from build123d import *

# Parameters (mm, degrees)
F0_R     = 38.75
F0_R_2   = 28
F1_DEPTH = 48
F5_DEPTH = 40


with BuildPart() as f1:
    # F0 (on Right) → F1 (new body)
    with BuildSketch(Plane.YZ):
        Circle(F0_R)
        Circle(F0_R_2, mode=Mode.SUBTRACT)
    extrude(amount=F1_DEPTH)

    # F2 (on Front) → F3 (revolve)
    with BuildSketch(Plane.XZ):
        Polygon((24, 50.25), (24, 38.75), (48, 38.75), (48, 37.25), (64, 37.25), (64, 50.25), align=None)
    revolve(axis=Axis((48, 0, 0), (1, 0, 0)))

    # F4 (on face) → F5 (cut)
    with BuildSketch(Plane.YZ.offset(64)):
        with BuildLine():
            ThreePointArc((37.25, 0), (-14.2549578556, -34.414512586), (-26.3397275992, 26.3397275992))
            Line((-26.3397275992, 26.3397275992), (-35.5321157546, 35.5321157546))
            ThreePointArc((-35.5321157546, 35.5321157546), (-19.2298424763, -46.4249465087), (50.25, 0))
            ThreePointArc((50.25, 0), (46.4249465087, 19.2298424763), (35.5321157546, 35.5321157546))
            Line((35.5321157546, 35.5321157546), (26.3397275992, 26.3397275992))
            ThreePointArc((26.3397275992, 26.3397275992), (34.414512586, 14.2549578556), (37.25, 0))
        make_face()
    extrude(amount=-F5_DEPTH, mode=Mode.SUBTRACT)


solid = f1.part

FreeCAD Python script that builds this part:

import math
import FreeCAD as App
import Part
import Sketcher
from FreeCAD import Vector
Q = App.Units.Quantity


def add_polygon(sketch, points):
    """Adds a closed chain of lines whose ends are joined by coincident constraints."""
    first, n = sketch.GeometryCount, len(points)
    for a, b in zip(points, points[1:] + points[:1]):
        sketch.addGeometry(Part.LineSegment(App.Vector(*a, 0), App.Vector(*b, 0)), False)
    for i in range(n):
        sketch.addConstraint(Sketcher.Constraint("Coincident", first + i, 2, first + (i + 1) % n, 1))

doc = App.newDocument("Part")
body = doc.addObject("PartDesign::Body", "Body")

# Sketch on YZ plane
sketch1 = body.newObject("Sketcher::SketchObject", "Sketch")
sketch1.AttachmentSupport = (doc.getObject("YZ_Plane"), [""])
sketch1.MapMode = "FlatFace"
sketch1.addGeometry([
    Part.Circle(Vector(0, 0, 0), Vector(0, 0, 1), 39),
    Part.Circle(Vector(0, 0, 0), Vector(0, 0, 1), 28),
], False)
sketch1.addConstraint([
    Sketcher.Constraint("Coincident", 0, 3, -1, 1),
    Sketcher.Constraint("Coincident", 1, 3, -1, 1),
    Sketcher.Constraint("Diameter", 1, Q("56 mm")),
    Sketcher.Constraint("Diameter", 0, Q("77.5 mm")),
])
pad1 = body.newObject("PartDesign::Pad", "Pad")
pad1.Profile = sketch1
pad1.Length = 48

# Sketch on XZ plane
sketch2 = body.newObject("Sketcher::SketchObject", "Sketch001")
sketch2.AttachmentSupport = (doc.getObject("XZ_Plane"), [""])
sketch2.MapMode = "FlatFace"
add_polygon(sketch2, [(24, 50.2), (24, 38.8), (48, 38.8), (48, 37.2), (64, 37.2), (64, 50.2)])  # lines 0-5
sketch2.addConstraint([
    Sketcher.Constraint("Vertical", 0),
    Sketcher.Constraint("Horizontal", 1),
    Sketcher.Constraint("Vertical", 2),
    Sketcher.Constraint("Horizontal", 3),
    Sketcher.Constraint("Vertical", 4),
    Sketcher.Constraint("Horizontal", 5),
    Sketcher.Constraint("DistanceX", 1, 1, 1, 2, Q("24 mm")),
    Sketcher.Constraint("DistanceX", 3, 1, 3, 2, Q("16 mm")),
    Sketcher.Constraint("DistanceY", 4, 1, 4, 2, Q("13 mm")),
    Sketcher.Constraint("DistanceY", 0, 2, 0, 1, Q("11.5 mm")),
    Sketcher.Constraint("DistanceX", -1, 1, 0, 2, Q("24 mm")),
    Sketcher.Constraint("DistanceY", -1, 1, 0, 2, Q("38.75 mm")),
])
revolution = body.newObject("PartDesign::Revolution", "Revolution")
revolution.Profile = sketch2
revolution.ReferenceAxis = (sketch2, ["H_Axis"])
revolution.Angle = 360

# Sketch on YZ plane
sketch3 = body.newObject("Sketcher::SketchObject", "Sketch002")
sketch3.AttachmentSupport = (doc.getObject("YZ_Plane"), [""])
sketch3.MapMode = "FlatFace"
sketch3.AttachmentOffset = App.Placement(Vector(0, 0, 64), App.Rotation())
sketch3.addGeometry([
    Part.ArcOfCircle(Part.Circle(Vector(0, 0, 0), Vector(0, 0, 1), 37), math.radians(135), math.radians(360)),  # 0
    Part.LineSegment(Vector(-26, 26, 0), Vector(-36, 36, 0)),  # 1
    Part.ArcOfCircle(Part.Circle(Vector(0, 0, 0), Vector(0, 0, 1), 50), math.radians(135), math.radians(405)),  # 2
    Part.LineSegment(Vector(36, 36, 0), Vector(26, 26, 0)),  # 3
    Part.ArcOfCircle(Part.Circle(Vector(0, 0, 0), Vector(0, 0, 1), 37), math.radians(0), math.radians(45)),  # 4
], False)
sketch3.addConstraint([
    Sketcher.Constraint("Coincident", 0, 1, 1, 1),
    Sketcher.Constraint("Coincident", 1, 2, 2, 1),
    Sketcher.Constraint("Coincident", 2, 2, 3, 1),
    Sketcher.Constraint("Coincident", 3, 2, 4, 2),
    Sketcher.Constraint("Tangent", 4, 1, 0, 2),
    Sketcher.Constraint("Coincident", 0, 3, -1, 1),
    Sketcher.Constraint("Coincident", 2, 3, -1, 1),
    Sketcher.Constraint("Equal", 0, 4),
    Sketcher.Constraint("PointOnObject", 4, 1, -1),
    Sketcher.Constraint("Perpendicular", 1, 3),
    Sketcher.Constraint("Horizontal", 1, 2, 2, 2),
    Sketcher.Constraint("Horizontal", 0, 1, 3, 2),
    Sketcher.Constraint("Radius", 0, Q("37.25 mm")),
    Sketcher.Constraint("Radius", 2, Q("50.25 mm")),
    Sketcher.Constraint("DistanceX", 1, 2, 2, 2, Q("71.064232 mm")),
])
pocket1 = body.newObject("PartDesign::Pocket", "Pocket")
pocket1.Profile = sketch3
pocket1.Length = 40

doc.recompute()
